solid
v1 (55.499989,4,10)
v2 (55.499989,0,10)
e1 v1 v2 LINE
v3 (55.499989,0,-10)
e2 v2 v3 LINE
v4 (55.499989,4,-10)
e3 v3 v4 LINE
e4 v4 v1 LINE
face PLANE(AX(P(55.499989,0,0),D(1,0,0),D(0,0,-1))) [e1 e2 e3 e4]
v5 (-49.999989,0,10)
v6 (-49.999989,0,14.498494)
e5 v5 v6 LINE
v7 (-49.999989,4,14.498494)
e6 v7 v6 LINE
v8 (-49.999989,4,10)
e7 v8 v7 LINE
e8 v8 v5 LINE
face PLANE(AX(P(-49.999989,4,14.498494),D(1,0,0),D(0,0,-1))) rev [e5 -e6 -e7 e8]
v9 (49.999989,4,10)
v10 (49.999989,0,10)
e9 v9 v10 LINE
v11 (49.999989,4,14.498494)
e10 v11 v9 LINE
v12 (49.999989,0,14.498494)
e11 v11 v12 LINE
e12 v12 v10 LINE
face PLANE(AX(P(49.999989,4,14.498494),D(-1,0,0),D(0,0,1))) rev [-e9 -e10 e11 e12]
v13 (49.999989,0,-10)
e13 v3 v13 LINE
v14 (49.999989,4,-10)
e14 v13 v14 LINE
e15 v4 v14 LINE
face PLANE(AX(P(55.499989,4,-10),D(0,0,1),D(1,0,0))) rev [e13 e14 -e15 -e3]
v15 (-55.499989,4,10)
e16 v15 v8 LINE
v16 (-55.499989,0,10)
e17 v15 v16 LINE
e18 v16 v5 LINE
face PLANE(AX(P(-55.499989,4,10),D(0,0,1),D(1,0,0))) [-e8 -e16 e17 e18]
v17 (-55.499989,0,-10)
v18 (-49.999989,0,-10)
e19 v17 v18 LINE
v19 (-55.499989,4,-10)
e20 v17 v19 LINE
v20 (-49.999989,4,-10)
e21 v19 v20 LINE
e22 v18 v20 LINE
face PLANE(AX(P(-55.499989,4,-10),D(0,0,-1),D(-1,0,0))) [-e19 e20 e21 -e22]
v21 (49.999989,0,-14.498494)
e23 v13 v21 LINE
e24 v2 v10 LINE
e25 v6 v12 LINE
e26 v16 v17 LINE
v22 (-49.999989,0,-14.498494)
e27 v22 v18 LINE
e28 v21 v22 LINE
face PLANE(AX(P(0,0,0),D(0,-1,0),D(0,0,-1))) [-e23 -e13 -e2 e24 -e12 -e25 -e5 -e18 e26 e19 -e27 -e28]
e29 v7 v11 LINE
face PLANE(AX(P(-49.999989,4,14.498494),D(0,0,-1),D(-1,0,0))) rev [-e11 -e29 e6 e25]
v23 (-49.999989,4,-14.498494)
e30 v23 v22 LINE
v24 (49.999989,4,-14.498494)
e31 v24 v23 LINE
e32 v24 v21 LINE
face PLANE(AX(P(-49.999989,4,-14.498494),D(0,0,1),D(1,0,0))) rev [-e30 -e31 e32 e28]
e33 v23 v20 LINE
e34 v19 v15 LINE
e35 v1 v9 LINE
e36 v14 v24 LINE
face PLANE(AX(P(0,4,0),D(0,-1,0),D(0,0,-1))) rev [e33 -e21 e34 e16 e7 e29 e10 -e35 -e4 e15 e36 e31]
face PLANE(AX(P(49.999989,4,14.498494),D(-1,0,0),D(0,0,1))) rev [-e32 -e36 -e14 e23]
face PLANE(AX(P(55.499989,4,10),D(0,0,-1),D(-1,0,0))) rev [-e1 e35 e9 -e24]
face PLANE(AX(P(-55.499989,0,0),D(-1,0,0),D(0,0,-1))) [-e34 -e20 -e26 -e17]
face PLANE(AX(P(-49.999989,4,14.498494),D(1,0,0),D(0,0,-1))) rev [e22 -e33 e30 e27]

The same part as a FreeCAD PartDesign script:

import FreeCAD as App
import Part
import Sketcher
Q = App.Units.Quantity

doc = App.newDocument("Part")
body = doc.addObject("PartDesign::Body", "Body")

# Sketch on XZ plane
sketch1 = body.newObject("Sketcher::SketchObject", "Sketch")
sketch1.AttachmentSupport = (doc.getObject("XZ_Plane"), [""])
sketch1.MapMode = "FlatFace"
sketch1.addGeometry(Part.LineSegment(App.Vector(-49.999989, -14.498494, 0), App.Vector(-49.999989, 14.498494, 0)), False)
sketch1.addGeometry(Part.LineSegment(App.Vector(-49.999989, 14.498494, 0), App.Vector(49.999989, 14.498494, 0)), False)
sketch1.addGeometry(Part.LineSegment(App.Vector(49.999989, 14.498494, 0), App.Vector(49.999989, -14.498494, 0)), False)
sketch1.addGeometry(Part.LineSegment(App.Vector(49.999989, -14.498494, 0), App.Vector(-49.999989, -14.498494, 0)), False)
sketch1.addConstraint(Sketcher.Constraint("Coincident", 0, 2, 1, 1))
sketch1.addConstraint(Sketcher.Constraint("Coincident", 1, 2, 2, 1))
sketch1.addConstraint(Sketcher.Constraint("Coincident", 2, 2, 3, 1))
sketch1.addConstraint(Sketcher.Constraint("Coincident", 3, 2, 0, 1))
sketch1.addConstraint(Sketcher.Constraint("Vertical", 0))
sketch1.addConstraint(Sketcher.Constraint("Horizontal", 1))
sketch1.addConstraint(Sketcher.Constraint("Vertical", 2))
sketch1.addConstraint(Sketcher.Constraint("Horizontal", 3))
sketch1.addConstraint(Sketcher.Constraint("Symmetric", 0, 2, 2, 2, -1, 1))
sketch1.addConstraint(Sketcher.Constraint("DistanceY", 0, 1, 0, 2, Q("28.996989 mm")))
sketch1.addConstraint(Sketcher.Constraint("DistanceX", 1, 1, 1, 2, Q("99.999978 mm")))
pad1 = body.newObject("PartDesign::Pad", "Pad")
pad1.Profile = sketch1
pad1.Length = 4
pad1.Reversed = True

# Sketch on YZ plane
sketch2 = body.newObject("Sketcher::SketchObject", "Sketch001")
sketch2.AttachmentSupport = (doc.getObject("YZ_Plane"), [""])
sketch2.MapMode = "FlatFace"
sketch2.AttachmentOffset = App.Placement(App.Vector(0, 0, 49.999989), App.Rotation())
sketch2.addGeometry(Part.LineSegment(App.Vector(4, 10, 0), App.Vector(0, 10, 0)), False)
sketch2.addGeometry(Part.LineSegment(App.Vector(0, 10, 0), App.Vector(0, -10, 0)), False)
sketch2.addGeometry(Part.LineSegment(App.Vector(0, -10, 0), App.Vector(4, -10, 0)), False)
sketch2.addGeometry(Part.LineSegment(App.Vector(4, -10, 0), App.Vector(4, 10, 0)), False)
sketch2.addConstraint(Sketcher.Constraint("Coincident", 0, 2, 1, 1))
sketch2.addConstraint(Sketcher.Constraint("Coincident", 1, 2, 2, 1))
sketch2.addConstraint(Sketcher.Constraint("Coincident", 2, 2, 3, 1))
sketch2.addConstraint(Sketcher.Constraint("Coincident", 3, 2, 0, 1))
sketch2.addConstraint(Sketcher.Constraint("Horizontal", 0))
sketch2.addConstraint(Sketcher.Constraint("Vertical", 1))
sketch2.addConstraint(Sketcher.Constraint("Horizontal", 2))
sketch2.addConstraint(Sketcher.Constraint("Vertical", 3))
sketch2.addConstraint(Sketcher.Constraint("Symmetric", 0, 2, 1, 2, -1, 1))
sketch2.addConstraint(Sketcher.Constraint("DistanceX", 0, 2, 0, 1, Q("4 mm")))
sketch2.addConstraint(Sketcher.Constraint("DistanceY", 1, 2, 1, 1, Q("20 mm")))
pad2 = body.newObject("PartDesign::Pad", "Pad001")
pad2.Profile = sketch2
pad2.Length = 5.5
doc.recompute()

mirrored = body.newObject("PartDesign::Mirrored", "Mirrored")
mirrored.Originals = [pad2]
mirrored.MirrorPlane = (doc.getObject("YZ_Plane"), [""])
body.Tip = mirrored

doc.recompute()
